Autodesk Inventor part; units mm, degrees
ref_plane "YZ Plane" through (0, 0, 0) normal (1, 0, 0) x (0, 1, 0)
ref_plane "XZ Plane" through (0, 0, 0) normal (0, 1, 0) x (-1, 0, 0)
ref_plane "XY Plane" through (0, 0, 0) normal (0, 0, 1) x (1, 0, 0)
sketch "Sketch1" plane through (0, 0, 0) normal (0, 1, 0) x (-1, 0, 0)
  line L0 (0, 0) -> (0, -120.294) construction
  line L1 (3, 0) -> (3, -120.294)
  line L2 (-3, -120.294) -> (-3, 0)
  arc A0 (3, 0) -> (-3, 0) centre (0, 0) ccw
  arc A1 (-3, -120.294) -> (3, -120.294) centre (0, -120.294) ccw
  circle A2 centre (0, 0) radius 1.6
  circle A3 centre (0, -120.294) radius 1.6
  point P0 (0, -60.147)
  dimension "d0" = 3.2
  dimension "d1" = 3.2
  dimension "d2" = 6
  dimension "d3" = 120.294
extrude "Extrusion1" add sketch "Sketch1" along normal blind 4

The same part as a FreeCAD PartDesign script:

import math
import FreeCAD as App
import Part
import Sketcher

V = App.Vector

doc = App.newDocument("Part")
body = doc.addObject("PartDesign::Body", "Body")

sketch1 = body.newObject("Sketcher::SketchObject", "Sketch")
sketch1.AttachmentSupport = (doc.getObject("XZ_Plane"), [""])
sketch1.MapMode = "FlatFace"
sketch1.addGeometry([
    Part.LineSegment(V(-3, -120.3, 0), V(-3, 0, 0)),
    Part.ArcOfCircle(Part.Circle(V(0, 0, 0), V(0, 0, 1), 3), math.radians(0), math.radians(180)),
    Part.LineSegment(V(3, 0, 0), V(3, -120.3, 0)),
    Part.ArcOfCircle(Part.Circle(V(0, -120.3, 0), V(0, 0, 1), 3), math.radians(180), math.radians(360)),
    Part.Circle(V(0, -120.3, 0), V(0, 0, 1), 1.6),
    Part.Circle(V(0, 0, 0), V(0, 0, 1), 1.6),
], False)
sketch1.addConstraint([
    Sketcher.Constraint("Tangent", 0, 2, 1, 2),
    Sketcher.Constraint("Tangent", 1, 1, 2, 1),
    Sketcher.Constraint("Tangent", 2, 2, 3, 2),
    Sketcher.Constraint("Tangent", 3, 1, 0, 1),
    Sketcher.Constraint("Vertical", 0),
    Sketcher.Constraint("Vertical", 2),
    Sketcher.Constraint("Coincident", 1, 3, -1, 1),
    Sketcher.Constraint("Coincident", 5, 3, -1, 1),
    Sketcher.Constraint("Coincident", 4, 3, 3, 3),
    Sketcher.Constraint("Equal", 4, 5),
    Sketcher.Constraint("Radius", 1, 3.0),
    Sketcher.Constraint("Diameter", 4, 3.2),
    Sketcher.Constraint("DistanceY", 0, 1, 0, 2, 120.294),
])
pad1 = body.newObject("PartDesign::Pad", "Pad")
pad1.Profile = sketch1
pad1.Length = 4
pad1.Reversed = True

doc.recompute()
